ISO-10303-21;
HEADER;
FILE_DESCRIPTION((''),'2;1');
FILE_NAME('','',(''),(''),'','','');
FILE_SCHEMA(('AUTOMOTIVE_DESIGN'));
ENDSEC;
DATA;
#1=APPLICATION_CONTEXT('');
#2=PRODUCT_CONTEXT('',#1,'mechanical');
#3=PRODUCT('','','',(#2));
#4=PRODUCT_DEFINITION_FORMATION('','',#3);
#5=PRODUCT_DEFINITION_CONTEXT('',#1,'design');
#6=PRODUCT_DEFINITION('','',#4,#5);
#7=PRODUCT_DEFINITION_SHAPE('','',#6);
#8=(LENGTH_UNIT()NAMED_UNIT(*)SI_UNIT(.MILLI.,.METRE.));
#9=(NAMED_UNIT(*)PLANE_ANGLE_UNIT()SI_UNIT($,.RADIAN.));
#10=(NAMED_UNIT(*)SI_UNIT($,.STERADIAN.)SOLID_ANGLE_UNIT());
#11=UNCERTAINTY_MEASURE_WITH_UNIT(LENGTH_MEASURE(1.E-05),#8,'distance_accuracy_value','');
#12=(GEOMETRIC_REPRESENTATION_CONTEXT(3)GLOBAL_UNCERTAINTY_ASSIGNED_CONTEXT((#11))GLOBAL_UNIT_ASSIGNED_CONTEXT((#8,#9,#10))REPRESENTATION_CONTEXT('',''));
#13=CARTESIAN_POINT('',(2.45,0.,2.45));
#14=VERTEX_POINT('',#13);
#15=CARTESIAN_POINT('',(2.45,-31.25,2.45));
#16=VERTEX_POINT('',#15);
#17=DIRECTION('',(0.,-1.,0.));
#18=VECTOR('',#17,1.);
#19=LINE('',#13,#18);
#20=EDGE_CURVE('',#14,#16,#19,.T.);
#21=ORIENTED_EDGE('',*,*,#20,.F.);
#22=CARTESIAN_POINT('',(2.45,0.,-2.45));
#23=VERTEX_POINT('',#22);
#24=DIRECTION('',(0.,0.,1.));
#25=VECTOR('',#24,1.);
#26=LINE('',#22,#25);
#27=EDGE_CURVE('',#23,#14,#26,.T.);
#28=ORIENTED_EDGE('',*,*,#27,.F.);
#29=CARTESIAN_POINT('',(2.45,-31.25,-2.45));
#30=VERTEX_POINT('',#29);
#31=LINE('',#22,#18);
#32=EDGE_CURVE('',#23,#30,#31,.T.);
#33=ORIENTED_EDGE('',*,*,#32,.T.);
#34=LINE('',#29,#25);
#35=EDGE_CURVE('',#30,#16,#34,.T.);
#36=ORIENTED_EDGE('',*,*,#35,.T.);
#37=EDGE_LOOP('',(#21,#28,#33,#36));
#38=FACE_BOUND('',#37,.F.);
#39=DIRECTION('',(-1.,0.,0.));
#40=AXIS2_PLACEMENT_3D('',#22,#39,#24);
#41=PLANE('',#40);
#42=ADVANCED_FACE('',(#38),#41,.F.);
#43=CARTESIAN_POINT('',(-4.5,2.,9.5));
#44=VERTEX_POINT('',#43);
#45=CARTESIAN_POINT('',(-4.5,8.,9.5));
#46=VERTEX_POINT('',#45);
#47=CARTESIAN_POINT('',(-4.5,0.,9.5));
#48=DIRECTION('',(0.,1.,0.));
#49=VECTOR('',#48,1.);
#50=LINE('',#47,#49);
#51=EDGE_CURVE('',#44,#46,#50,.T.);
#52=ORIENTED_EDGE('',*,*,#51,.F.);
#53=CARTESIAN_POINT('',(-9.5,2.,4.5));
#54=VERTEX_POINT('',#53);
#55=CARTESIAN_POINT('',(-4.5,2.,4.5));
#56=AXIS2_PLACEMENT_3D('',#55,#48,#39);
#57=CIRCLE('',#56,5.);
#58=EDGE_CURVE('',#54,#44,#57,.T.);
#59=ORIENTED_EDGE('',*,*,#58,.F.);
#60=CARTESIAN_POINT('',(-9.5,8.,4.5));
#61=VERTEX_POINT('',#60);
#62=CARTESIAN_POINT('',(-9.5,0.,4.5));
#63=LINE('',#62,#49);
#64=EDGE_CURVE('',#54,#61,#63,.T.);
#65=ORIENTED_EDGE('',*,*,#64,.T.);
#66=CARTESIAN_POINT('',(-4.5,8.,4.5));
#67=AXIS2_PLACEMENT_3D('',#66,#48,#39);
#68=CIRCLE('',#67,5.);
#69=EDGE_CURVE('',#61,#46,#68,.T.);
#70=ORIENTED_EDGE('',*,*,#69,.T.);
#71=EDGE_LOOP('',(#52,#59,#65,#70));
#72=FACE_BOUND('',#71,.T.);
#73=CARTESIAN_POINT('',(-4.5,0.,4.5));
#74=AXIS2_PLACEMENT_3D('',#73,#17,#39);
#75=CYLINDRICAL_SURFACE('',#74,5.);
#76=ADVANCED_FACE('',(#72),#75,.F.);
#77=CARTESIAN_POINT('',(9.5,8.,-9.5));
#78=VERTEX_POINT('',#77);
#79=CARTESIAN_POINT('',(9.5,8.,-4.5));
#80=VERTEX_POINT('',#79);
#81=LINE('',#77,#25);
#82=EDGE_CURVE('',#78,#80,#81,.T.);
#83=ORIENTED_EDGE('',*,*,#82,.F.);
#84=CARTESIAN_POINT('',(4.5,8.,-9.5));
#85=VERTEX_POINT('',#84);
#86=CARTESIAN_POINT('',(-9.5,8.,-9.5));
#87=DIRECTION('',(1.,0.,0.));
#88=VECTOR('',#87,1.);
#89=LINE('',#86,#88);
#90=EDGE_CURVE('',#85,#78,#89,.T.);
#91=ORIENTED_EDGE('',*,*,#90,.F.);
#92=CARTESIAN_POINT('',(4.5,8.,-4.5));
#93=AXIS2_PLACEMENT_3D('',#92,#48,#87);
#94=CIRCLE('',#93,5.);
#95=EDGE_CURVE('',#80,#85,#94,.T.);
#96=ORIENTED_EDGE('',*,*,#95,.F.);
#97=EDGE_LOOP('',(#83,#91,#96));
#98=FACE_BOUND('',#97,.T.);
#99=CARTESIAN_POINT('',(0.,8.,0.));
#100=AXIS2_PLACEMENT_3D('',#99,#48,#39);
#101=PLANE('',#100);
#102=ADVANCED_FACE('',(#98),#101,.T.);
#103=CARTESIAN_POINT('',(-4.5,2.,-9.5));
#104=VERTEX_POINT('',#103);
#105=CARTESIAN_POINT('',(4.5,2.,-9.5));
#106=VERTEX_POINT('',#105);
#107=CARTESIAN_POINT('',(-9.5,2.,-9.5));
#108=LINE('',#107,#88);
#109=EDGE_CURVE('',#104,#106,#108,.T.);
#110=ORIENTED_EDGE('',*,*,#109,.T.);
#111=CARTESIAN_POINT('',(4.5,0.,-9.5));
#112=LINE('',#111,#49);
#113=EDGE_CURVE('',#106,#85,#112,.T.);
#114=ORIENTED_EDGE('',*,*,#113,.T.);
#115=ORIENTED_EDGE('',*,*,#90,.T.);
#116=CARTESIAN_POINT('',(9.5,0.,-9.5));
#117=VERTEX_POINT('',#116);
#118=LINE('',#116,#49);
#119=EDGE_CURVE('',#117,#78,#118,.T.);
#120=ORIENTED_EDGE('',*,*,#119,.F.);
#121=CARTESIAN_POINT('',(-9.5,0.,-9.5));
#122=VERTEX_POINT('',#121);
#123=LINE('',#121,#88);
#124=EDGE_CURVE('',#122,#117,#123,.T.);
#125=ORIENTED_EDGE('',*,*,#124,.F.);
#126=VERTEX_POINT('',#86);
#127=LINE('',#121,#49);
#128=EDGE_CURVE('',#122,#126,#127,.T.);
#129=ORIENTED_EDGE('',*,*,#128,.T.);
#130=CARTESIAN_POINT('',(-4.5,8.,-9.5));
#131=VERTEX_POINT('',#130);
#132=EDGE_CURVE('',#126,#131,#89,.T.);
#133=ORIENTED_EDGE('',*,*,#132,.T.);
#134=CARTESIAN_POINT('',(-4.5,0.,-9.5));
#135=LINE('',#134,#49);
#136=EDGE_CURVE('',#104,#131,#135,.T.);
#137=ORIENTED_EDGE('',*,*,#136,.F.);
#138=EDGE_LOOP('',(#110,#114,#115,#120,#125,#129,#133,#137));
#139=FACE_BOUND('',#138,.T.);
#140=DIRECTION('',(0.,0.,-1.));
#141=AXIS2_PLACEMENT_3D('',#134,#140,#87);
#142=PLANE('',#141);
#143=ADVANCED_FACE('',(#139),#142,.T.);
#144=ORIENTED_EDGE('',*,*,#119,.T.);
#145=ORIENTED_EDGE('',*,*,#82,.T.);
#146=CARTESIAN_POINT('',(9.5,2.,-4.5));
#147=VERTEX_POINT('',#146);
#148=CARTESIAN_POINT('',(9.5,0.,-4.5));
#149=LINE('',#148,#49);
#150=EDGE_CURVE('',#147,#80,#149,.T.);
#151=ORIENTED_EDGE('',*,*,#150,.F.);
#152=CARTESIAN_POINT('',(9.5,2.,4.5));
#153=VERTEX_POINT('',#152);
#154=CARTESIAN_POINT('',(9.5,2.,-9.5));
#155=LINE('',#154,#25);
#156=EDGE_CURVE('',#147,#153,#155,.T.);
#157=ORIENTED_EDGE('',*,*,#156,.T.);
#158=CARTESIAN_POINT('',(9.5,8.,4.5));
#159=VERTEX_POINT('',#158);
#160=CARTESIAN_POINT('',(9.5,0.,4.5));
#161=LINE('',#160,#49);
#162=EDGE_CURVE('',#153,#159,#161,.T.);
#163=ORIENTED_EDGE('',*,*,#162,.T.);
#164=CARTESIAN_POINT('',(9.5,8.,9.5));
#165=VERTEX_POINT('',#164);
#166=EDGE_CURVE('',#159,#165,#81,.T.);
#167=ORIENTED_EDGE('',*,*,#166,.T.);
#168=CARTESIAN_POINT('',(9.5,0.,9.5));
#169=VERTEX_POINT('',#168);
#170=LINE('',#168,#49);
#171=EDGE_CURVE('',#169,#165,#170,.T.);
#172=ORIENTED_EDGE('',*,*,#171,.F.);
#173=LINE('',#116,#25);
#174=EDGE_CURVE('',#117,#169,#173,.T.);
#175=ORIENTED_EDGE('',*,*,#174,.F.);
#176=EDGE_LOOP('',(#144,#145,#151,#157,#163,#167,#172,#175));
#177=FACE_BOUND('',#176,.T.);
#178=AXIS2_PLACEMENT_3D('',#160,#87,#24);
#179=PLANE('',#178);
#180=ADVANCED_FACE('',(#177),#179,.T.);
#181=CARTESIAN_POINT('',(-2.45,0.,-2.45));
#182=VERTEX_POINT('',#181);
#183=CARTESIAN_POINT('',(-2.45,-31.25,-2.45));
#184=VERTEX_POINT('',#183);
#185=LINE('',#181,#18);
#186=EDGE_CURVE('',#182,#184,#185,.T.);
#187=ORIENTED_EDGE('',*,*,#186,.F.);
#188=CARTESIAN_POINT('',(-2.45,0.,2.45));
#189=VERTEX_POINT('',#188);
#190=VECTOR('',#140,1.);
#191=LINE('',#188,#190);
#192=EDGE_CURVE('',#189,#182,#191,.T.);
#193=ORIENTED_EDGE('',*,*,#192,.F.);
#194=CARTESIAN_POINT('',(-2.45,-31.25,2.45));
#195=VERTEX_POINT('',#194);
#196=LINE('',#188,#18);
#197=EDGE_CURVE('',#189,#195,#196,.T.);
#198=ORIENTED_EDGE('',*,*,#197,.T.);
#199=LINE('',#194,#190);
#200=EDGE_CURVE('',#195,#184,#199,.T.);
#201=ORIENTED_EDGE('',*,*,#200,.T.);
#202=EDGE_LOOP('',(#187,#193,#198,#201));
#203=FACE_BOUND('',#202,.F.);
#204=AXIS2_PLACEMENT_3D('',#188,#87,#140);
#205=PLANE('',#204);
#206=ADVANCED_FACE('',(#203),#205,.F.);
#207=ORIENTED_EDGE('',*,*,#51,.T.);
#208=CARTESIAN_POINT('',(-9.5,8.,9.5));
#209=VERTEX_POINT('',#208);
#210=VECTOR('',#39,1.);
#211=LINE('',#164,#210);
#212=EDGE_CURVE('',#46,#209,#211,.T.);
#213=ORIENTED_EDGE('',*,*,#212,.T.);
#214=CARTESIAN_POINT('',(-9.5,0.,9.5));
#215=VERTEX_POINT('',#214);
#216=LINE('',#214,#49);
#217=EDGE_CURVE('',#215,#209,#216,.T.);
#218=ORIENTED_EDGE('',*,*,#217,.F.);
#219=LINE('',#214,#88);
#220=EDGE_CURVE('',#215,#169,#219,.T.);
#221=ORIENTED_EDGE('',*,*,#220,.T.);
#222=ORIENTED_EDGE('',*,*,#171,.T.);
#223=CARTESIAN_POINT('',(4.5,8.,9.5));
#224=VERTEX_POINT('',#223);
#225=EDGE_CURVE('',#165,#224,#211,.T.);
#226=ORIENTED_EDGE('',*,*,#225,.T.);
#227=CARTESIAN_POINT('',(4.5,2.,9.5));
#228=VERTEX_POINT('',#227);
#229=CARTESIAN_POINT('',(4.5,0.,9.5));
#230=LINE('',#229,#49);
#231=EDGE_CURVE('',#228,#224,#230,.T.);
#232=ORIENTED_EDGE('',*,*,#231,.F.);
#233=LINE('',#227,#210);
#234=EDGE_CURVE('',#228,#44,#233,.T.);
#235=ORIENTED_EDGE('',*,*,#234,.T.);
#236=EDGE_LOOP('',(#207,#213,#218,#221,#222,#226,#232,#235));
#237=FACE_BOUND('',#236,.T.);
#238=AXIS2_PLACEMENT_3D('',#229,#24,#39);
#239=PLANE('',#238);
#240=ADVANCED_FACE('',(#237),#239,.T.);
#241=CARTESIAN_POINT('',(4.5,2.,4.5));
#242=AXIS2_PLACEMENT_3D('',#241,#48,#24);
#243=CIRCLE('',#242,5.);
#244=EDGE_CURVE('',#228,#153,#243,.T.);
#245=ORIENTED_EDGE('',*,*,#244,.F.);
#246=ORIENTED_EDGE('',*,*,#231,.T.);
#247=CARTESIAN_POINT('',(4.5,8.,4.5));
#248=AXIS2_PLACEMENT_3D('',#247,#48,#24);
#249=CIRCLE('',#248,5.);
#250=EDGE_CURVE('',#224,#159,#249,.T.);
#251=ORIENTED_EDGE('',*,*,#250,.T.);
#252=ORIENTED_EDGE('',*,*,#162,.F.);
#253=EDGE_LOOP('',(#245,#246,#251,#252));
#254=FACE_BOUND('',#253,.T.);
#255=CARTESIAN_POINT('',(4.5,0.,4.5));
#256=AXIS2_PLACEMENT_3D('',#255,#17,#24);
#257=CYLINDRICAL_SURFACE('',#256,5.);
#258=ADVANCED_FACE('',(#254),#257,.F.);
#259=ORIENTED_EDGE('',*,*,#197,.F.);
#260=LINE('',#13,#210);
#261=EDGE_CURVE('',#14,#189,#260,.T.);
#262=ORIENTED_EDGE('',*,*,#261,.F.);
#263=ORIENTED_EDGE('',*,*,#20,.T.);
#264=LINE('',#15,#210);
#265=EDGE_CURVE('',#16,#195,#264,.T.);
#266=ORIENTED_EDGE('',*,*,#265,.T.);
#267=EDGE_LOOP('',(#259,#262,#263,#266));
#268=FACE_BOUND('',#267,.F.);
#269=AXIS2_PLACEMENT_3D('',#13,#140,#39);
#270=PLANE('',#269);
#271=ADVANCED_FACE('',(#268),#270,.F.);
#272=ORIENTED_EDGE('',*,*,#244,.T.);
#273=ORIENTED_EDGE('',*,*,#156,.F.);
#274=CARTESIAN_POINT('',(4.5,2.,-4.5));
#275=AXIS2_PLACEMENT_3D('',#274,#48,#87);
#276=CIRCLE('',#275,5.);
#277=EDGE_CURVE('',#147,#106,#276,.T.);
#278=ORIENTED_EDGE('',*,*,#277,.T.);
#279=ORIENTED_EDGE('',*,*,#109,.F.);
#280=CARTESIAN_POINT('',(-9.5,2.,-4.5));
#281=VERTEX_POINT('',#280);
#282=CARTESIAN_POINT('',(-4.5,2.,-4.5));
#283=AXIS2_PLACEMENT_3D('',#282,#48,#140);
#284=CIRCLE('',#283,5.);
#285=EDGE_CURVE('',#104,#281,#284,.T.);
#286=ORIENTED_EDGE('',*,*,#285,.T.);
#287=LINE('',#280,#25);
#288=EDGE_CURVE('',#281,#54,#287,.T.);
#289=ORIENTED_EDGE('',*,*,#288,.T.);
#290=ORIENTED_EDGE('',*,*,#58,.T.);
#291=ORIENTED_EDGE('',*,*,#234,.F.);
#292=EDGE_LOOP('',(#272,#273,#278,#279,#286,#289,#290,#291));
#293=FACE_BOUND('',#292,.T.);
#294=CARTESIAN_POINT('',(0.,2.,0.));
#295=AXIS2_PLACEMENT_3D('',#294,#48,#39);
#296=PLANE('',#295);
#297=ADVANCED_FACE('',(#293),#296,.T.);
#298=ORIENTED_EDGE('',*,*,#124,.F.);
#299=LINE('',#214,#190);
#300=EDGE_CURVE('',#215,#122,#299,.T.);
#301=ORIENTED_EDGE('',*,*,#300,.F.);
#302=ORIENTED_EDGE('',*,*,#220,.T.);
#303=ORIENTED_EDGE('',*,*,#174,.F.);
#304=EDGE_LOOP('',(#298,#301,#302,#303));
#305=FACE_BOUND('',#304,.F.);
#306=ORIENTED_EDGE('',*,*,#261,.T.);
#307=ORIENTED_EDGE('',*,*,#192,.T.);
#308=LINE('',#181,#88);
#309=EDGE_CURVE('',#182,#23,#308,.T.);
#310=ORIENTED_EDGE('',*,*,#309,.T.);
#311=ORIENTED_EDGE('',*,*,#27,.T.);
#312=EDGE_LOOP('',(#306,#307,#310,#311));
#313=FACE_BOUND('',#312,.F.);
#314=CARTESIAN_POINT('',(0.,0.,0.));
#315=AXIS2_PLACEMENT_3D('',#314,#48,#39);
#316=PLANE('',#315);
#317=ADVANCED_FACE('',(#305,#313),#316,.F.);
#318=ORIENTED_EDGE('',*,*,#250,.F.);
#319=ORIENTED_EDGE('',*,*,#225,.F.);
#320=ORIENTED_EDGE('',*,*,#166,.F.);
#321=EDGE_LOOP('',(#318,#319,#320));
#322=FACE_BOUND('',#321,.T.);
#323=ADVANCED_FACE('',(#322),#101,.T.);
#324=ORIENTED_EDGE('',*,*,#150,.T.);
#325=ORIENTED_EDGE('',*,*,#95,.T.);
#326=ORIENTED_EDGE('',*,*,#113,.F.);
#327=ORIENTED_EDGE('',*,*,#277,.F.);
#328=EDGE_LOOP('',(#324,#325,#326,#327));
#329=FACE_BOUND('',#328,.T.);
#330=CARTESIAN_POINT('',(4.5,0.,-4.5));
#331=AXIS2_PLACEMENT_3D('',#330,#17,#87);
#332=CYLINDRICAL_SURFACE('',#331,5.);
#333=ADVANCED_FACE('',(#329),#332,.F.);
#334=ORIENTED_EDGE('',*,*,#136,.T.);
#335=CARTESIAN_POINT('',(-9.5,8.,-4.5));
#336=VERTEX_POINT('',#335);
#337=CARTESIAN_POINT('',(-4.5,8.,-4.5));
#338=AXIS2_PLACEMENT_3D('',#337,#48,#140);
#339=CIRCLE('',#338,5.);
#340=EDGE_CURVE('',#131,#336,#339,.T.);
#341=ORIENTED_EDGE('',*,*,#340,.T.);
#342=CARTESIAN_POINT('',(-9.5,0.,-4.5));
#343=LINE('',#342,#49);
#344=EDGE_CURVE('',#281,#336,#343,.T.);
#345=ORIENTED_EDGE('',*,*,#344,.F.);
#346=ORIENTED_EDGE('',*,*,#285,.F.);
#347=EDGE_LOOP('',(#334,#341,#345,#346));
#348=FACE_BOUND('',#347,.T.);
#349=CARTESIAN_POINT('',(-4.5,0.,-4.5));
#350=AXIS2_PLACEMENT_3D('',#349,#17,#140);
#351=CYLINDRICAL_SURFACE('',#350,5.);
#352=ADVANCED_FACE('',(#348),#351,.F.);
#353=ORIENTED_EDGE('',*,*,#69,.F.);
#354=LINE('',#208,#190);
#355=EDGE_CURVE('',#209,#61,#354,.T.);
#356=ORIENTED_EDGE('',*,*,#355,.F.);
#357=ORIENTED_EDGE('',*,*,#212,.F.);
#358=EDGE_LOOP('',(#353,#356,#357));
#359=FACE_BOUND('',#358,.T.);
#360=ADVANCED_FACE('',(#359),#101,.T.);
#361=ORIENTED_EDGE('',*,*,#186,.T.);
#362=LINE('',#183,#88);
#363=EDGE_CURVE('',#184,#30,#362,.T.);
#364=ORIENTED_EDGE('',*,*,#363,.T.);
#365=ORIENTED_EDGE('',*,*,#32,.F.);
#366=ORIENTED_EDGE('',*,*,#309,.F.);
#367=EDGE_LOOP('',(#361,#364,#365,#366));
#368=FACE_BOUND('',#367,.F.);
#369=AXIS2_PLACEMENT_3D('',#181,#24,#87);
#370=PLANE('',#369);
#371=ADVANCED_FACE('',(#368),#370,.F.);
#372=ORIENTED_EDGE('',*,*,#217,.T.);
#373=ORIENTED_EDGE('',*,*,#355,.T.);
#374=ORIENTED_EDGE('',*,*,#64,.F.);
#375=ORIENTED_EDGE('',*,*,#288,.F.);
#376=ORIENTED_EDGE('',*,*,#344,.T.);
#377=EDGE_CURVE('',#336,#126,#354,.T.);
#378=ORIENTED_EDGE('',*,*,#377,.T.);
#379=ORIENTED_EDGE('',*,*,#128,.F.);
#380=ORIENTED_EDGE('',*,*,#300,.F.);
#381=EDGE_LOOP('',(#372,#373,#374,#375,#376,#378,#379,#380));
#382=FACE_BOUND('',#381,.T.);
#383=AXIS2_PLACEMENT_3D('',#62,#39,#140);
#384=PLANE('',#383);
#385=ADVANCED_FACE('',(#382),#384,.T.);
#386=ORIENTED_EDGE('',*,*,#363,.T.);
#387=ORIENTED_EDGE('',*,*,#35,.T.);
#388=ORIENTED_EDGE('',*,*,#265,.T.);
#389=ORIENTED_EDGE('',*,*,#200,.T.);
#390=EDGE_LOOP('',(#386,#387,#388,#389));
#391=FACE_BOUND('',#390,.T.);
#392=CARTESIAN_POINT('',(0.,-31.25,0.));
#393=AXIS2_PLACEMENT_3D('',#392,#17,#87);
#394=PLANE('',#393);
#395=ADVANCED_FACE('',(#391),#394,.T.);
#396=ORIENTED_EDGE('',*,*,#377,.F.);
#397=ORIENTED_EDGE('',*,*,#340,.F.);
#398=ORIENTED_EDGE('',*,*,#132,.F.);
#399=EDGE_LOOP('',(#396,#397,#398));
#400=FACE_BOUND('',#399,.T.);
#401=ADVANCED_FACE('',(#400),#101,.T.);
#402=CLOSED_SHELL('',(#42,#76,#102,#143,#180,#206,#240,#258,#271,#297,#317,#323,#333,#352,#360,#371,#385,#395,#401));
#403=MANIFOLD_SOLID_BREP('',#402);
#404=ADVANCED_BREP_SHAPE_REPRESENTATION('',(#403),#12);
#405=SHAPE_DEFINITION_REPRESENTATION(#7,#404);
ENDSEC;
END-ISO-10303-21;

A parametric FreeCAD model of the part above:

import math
import FreeCAD as App
import Part
import Sketcher
from FreeCAD import Vector


def add_polygon(sketch, points):
    """Adds a closed chain of lines whose ends are joined by coincident constraints."""
    first, n = sketch.GeometryCount, len(points)
    for a, b in zip(points, points[1:] + points[:1]):
        sketch.addGeometry(Part.LineSegment(App.Vector(*a, 0), App.Vector(*b, 0)), False)
    for i in range(n):
        sketch.addConstraint(Sketcher.Constraint("Coincident", first + i, 2, first + (i + 1) % n, 1))

doc = App.newDocument("Part")
params = doc.addObject("Spreadsheet::Sheet", "Params")
for row, (alias, value) in enumerate([
    ("sketch1_radius", "5 mm"),
    ("pad1_length", "2 mm"),
    ("sketch2_radius", "5 mm"),
    ("pad2_length", "8 mm"),
    ("sketch3_width", "4.9 mm"),
    ("pad3_length", "31.25 mm"),
], start=1):
    params.set(f"A{row}", alias)
    params.set(f"B{row}", "=" + value)
    params.setAlias(f"B{row}", alias)

body = doc.addObject("PartDesign::Body", "Body")

sketch1 = body.newObject("Sketcher::SketchObject", "Sketch")
sketch1.AttachmentSupport = (doc.getObject("XZ_Plane"), [""])
sketch1.MapMode = "FlatFace"
sketch1.addGeometry([
    Part.LineSegment(Vector(-4.5, 9.5, 0), Vector(4.5, 9.5, 0)),
    Part.ArcOfCircle(Part.Circle(Vector(4.5, 4.5, 0), Vector(0, 0, 1), 5), math.radians(0), math.radians(90)),
    Part.LineSegment(Vector(9.5, 4.5, 0), Vector(9.5, -4.5, 0)),
    Part.ArcOfCircle(Part.Circle(Vector(4.5, -4.5, 0), Vector(0, 0, 1), 5), math.radians(-90), math.radians(0)),
    Part.LineSegment(Vector(4.5, -9.5, 0), Vector(-4.5, -9.5, 0)),
    Part.ArcOfCircle(Part.Circle(Vector(-4.5, -4.5, 0), Vector(0, 0, 1), 5), math.radians(180), math.radians(270)),
    Part.LineSegment(Vector(-9.5, -4.5, 0), Vector(-9.5, 4.5, 0)),
    Part.ArcOfCircle(Part.Circle(Vector(-4.5, 4.5, 0), Vector(0, 0, 1), 5), math.radians(90), math.radians(180)),
], False)
sketch1.addConstraint([
    Sketcher.Constraint("Tangent", 0, 2, 1, 2),
    Sketcher.Constraint("Tangent", 1, 1, 2, 1),
    Sketcher.Constraint("Tangent", 2, 2, 3, 2),
    Sketcher.Constraint("Tangent", 3, 1, 4, 1),
    Sketcher.Constraint("Tangent", 4, 2, 5, 2),
    Sketcher.Constraint("Tangent", 5, 1, 6, 1),
    Sketcher.Constraint("Tangent", 6, 2, 7, 2),
    Sketcher.Constraint("Tangent", 7, 1, 0, 1),
    Sketcher.Constraint("Horizontal", 0),
    Sketcher.Constraint("Vertical", 2),
    Sketcher.Constraint("Horizontal", 4),
    Sketcher.Constraint("Vertical", 6),
    Sketcher.Constraint("Equal", 1, 3),
    Sketcher.Constraint("Equal", 3, 5),
    Sketcher.Constraint("Equal", 5, 7),
    Sketcher.Constraint("Symmetric", 1, 3, 5, 3, -1, 1),
    Sketcher.Constraint("Equal", 4, 2),
    Sketcher.Constraint("Radius", 1, 5.0),
    Sketcher.Constraint("DistanceX", -1, 1, 1, 3, 4.5),
])
sketch1.setExpression("Constraints[17]", "Params.sketch1_radius")
pad1 = body.newObject("PartDesign::Pad", "Pad")
pad1.Profile = sketch1
pad1.setExpression("Length", "Params.pad1_length")
pad1.Reversed = True

sketch2 = body.newObject("Sketcher::SketchObject", "Sketch001")
sketch2.AttachmentSupport = (doc.getObject("XZ_Plane"), [""])
sketch2.MapMode = "FlatFace"
sketch2.addGeometry([
    Part.LineSegment(Vector(4.5, 9.5, 0), Vector(9.5, 9.5, 0)),
    Part.LineSegment(Vector(9.5, 9.5, 0), Vector(9.5, 4.5, 0)),
    Part.ArcOfCircle(Part.Circle(Vector(4.5, 4.5, 0), Vector(0, 0, 1), 5), math.radians(0), math.radians(90)),
    Part.ArcOfCircle(Part.Circle(Vector(4.5, -4.5, 0), Vector(0, 0, 1), 5), math.radians(-90), math.radians(0)),
    Part.LineSegment(Vector(9.5, -4.5, 0), Vector(9.5, -9.5, 0)),
    Part.LineSegment(Vector(9.5, -9.5, 0), Vector(4.5, -9.5, 0)),
    Part.LineSegment(Vector(-9.5, 9.5, 0), Vector(-4.5, 9.5, 0)),
    Part.ArcOfCircle(Part.Circle(Vector(-4.5, 4.5, 0), Vector(0, 0, 1), 5), math.radians(90), math.radians(180)),
    Part.LineSegment(Vector(-9.5, 4.5, 0), Vector(-9.5, 9.5, 0)),
    Part.ArcOfCircle(Part.Circle(Vector(-4.5, -4.5, 0), Vector(0, 0, 1), 5), math.radians(180), math.radians(270)),
    Part.LineSegment(Vector(-4.5, -9.5, 0), Vector(-9.5, -9.5, 0)),
    Part.LineSegment(Vector(-9.5, -9.5, 0), Vector(-9.5, -4.5, 0)),
], False)
sketch2.addConstraint([
    Sketcher.Constraint("Coincident", 0, 2, 1, 1),
    Sketcher.Constraint("Tangent", 1, 2, 2, 1),
    Sketcher.Constraint("Tangent", 2, 2, 0, 1),
    Sketcher.Constraint("Tangent", 3, 2, 4, 1),
    Sketcher.Constraint("Coincident", 4, 2, 5, 1),
    Sketcher.Constraint("Tangent", 5, 2, 3, 1),
    Sketcher.Constraint("Tangent", 6, 2, 7, 1),
    Sketcher.Constraint("Tangent", 7, 2, 8, 1),
    Sketcher.Constraint("Coincident", 8, 2, 6, 1),
    Sketcher.Constraint("Tangent", 9, 2, 10, 1),
    Sketcher.Constraint("Coincident", 10, 2, 11, 1),
    Sketcher.Constraint("Tangent", 11, 2, 9, 1),
    Sketcher.Constraint("Horizontal", 0),
    Sketcher.Constraint("Vertical", 1),
    Sketcher.Constraint("Vertical", 4),
    Sketcher.Constraint("Horizontal", 5),
    Sketcher.Constraint("Horizontal", 6),
    Sketcher.Constraint("Vertical", 8),
    Sketcher.Constraint("Horizontal", 10),
    Sketcher.Constraint("Vertical", 11),
    Sketcher.Constraint("Equal", 2, 3),
    Sketcher.Constraint("Equal", 3, 7),
    Sketcher.Constraint("Equal", 7, 9),
    Sketcher.Constraint("Symmetric", 3, 3, 7, 3, -1, 1),
    Sketcher.Constraint("Symmetric", 2, 3, 9, 3, -1, 1),
    Sketcher.Constraint("Symmetric", 2, 3, 7, 3, -2),
    Sketcher.Constraint("Radius", 2, 5.0),
    Sketcher.Constraint("DistanceX", -1, 1, 2, 3, 4.5),
    Sketcher.Constraint("DistanceY", -1, 1, 2, 3, 4.5),
])
sketch2.setExpression("Constraints[26]", "Params.sketch2_radius")
pad2 = body.newObject("PartDesign::Pad", "Pad001")
pad2.Profile = sketch2
pad2.setExpression("Length", "Params.pad2_length")
pad2.Reversed = True

sketch3 = body.newObject("Sketcher::SketchObject", "Sketch002")
sketch3.AttachmentSupport = (doc.getObject("XZ_Plane"), [""])
sketch3.MapMode = "FlatFace"
add_polygon(sketch3, [(2.45, 2.45), (-2.45, 2.45), (-2.45, -2.45), (2.45, -2.45)])
sketch3.addConstraint([
    Sketcher.Constraint("Horizontal", 0),
    Sketcher.Constraint("Vertical", 1),
    Sketcher.Constraint("Horizontal", 2),
    Sketcher.Constraint("Vertical", 3),
    Sketcher.Constraint("Symmetric", 0, 2, 2, 2, -1, 1),
    Sketcher.Constraint("Equal", 2, 1),
    Sketcher.Constraint("DistanceX", 0, 2, 0, 1, 4.9),
])
sketch3.setExpression("Constraints[10]", "Params.sketch3_width")
pad3 = body.newObject("PartDesign::Pad", "Pad002")
pad3.Profile = sketch3
pad3.setExpression("Length", "Params.pad3_length")

doc.recompute()
